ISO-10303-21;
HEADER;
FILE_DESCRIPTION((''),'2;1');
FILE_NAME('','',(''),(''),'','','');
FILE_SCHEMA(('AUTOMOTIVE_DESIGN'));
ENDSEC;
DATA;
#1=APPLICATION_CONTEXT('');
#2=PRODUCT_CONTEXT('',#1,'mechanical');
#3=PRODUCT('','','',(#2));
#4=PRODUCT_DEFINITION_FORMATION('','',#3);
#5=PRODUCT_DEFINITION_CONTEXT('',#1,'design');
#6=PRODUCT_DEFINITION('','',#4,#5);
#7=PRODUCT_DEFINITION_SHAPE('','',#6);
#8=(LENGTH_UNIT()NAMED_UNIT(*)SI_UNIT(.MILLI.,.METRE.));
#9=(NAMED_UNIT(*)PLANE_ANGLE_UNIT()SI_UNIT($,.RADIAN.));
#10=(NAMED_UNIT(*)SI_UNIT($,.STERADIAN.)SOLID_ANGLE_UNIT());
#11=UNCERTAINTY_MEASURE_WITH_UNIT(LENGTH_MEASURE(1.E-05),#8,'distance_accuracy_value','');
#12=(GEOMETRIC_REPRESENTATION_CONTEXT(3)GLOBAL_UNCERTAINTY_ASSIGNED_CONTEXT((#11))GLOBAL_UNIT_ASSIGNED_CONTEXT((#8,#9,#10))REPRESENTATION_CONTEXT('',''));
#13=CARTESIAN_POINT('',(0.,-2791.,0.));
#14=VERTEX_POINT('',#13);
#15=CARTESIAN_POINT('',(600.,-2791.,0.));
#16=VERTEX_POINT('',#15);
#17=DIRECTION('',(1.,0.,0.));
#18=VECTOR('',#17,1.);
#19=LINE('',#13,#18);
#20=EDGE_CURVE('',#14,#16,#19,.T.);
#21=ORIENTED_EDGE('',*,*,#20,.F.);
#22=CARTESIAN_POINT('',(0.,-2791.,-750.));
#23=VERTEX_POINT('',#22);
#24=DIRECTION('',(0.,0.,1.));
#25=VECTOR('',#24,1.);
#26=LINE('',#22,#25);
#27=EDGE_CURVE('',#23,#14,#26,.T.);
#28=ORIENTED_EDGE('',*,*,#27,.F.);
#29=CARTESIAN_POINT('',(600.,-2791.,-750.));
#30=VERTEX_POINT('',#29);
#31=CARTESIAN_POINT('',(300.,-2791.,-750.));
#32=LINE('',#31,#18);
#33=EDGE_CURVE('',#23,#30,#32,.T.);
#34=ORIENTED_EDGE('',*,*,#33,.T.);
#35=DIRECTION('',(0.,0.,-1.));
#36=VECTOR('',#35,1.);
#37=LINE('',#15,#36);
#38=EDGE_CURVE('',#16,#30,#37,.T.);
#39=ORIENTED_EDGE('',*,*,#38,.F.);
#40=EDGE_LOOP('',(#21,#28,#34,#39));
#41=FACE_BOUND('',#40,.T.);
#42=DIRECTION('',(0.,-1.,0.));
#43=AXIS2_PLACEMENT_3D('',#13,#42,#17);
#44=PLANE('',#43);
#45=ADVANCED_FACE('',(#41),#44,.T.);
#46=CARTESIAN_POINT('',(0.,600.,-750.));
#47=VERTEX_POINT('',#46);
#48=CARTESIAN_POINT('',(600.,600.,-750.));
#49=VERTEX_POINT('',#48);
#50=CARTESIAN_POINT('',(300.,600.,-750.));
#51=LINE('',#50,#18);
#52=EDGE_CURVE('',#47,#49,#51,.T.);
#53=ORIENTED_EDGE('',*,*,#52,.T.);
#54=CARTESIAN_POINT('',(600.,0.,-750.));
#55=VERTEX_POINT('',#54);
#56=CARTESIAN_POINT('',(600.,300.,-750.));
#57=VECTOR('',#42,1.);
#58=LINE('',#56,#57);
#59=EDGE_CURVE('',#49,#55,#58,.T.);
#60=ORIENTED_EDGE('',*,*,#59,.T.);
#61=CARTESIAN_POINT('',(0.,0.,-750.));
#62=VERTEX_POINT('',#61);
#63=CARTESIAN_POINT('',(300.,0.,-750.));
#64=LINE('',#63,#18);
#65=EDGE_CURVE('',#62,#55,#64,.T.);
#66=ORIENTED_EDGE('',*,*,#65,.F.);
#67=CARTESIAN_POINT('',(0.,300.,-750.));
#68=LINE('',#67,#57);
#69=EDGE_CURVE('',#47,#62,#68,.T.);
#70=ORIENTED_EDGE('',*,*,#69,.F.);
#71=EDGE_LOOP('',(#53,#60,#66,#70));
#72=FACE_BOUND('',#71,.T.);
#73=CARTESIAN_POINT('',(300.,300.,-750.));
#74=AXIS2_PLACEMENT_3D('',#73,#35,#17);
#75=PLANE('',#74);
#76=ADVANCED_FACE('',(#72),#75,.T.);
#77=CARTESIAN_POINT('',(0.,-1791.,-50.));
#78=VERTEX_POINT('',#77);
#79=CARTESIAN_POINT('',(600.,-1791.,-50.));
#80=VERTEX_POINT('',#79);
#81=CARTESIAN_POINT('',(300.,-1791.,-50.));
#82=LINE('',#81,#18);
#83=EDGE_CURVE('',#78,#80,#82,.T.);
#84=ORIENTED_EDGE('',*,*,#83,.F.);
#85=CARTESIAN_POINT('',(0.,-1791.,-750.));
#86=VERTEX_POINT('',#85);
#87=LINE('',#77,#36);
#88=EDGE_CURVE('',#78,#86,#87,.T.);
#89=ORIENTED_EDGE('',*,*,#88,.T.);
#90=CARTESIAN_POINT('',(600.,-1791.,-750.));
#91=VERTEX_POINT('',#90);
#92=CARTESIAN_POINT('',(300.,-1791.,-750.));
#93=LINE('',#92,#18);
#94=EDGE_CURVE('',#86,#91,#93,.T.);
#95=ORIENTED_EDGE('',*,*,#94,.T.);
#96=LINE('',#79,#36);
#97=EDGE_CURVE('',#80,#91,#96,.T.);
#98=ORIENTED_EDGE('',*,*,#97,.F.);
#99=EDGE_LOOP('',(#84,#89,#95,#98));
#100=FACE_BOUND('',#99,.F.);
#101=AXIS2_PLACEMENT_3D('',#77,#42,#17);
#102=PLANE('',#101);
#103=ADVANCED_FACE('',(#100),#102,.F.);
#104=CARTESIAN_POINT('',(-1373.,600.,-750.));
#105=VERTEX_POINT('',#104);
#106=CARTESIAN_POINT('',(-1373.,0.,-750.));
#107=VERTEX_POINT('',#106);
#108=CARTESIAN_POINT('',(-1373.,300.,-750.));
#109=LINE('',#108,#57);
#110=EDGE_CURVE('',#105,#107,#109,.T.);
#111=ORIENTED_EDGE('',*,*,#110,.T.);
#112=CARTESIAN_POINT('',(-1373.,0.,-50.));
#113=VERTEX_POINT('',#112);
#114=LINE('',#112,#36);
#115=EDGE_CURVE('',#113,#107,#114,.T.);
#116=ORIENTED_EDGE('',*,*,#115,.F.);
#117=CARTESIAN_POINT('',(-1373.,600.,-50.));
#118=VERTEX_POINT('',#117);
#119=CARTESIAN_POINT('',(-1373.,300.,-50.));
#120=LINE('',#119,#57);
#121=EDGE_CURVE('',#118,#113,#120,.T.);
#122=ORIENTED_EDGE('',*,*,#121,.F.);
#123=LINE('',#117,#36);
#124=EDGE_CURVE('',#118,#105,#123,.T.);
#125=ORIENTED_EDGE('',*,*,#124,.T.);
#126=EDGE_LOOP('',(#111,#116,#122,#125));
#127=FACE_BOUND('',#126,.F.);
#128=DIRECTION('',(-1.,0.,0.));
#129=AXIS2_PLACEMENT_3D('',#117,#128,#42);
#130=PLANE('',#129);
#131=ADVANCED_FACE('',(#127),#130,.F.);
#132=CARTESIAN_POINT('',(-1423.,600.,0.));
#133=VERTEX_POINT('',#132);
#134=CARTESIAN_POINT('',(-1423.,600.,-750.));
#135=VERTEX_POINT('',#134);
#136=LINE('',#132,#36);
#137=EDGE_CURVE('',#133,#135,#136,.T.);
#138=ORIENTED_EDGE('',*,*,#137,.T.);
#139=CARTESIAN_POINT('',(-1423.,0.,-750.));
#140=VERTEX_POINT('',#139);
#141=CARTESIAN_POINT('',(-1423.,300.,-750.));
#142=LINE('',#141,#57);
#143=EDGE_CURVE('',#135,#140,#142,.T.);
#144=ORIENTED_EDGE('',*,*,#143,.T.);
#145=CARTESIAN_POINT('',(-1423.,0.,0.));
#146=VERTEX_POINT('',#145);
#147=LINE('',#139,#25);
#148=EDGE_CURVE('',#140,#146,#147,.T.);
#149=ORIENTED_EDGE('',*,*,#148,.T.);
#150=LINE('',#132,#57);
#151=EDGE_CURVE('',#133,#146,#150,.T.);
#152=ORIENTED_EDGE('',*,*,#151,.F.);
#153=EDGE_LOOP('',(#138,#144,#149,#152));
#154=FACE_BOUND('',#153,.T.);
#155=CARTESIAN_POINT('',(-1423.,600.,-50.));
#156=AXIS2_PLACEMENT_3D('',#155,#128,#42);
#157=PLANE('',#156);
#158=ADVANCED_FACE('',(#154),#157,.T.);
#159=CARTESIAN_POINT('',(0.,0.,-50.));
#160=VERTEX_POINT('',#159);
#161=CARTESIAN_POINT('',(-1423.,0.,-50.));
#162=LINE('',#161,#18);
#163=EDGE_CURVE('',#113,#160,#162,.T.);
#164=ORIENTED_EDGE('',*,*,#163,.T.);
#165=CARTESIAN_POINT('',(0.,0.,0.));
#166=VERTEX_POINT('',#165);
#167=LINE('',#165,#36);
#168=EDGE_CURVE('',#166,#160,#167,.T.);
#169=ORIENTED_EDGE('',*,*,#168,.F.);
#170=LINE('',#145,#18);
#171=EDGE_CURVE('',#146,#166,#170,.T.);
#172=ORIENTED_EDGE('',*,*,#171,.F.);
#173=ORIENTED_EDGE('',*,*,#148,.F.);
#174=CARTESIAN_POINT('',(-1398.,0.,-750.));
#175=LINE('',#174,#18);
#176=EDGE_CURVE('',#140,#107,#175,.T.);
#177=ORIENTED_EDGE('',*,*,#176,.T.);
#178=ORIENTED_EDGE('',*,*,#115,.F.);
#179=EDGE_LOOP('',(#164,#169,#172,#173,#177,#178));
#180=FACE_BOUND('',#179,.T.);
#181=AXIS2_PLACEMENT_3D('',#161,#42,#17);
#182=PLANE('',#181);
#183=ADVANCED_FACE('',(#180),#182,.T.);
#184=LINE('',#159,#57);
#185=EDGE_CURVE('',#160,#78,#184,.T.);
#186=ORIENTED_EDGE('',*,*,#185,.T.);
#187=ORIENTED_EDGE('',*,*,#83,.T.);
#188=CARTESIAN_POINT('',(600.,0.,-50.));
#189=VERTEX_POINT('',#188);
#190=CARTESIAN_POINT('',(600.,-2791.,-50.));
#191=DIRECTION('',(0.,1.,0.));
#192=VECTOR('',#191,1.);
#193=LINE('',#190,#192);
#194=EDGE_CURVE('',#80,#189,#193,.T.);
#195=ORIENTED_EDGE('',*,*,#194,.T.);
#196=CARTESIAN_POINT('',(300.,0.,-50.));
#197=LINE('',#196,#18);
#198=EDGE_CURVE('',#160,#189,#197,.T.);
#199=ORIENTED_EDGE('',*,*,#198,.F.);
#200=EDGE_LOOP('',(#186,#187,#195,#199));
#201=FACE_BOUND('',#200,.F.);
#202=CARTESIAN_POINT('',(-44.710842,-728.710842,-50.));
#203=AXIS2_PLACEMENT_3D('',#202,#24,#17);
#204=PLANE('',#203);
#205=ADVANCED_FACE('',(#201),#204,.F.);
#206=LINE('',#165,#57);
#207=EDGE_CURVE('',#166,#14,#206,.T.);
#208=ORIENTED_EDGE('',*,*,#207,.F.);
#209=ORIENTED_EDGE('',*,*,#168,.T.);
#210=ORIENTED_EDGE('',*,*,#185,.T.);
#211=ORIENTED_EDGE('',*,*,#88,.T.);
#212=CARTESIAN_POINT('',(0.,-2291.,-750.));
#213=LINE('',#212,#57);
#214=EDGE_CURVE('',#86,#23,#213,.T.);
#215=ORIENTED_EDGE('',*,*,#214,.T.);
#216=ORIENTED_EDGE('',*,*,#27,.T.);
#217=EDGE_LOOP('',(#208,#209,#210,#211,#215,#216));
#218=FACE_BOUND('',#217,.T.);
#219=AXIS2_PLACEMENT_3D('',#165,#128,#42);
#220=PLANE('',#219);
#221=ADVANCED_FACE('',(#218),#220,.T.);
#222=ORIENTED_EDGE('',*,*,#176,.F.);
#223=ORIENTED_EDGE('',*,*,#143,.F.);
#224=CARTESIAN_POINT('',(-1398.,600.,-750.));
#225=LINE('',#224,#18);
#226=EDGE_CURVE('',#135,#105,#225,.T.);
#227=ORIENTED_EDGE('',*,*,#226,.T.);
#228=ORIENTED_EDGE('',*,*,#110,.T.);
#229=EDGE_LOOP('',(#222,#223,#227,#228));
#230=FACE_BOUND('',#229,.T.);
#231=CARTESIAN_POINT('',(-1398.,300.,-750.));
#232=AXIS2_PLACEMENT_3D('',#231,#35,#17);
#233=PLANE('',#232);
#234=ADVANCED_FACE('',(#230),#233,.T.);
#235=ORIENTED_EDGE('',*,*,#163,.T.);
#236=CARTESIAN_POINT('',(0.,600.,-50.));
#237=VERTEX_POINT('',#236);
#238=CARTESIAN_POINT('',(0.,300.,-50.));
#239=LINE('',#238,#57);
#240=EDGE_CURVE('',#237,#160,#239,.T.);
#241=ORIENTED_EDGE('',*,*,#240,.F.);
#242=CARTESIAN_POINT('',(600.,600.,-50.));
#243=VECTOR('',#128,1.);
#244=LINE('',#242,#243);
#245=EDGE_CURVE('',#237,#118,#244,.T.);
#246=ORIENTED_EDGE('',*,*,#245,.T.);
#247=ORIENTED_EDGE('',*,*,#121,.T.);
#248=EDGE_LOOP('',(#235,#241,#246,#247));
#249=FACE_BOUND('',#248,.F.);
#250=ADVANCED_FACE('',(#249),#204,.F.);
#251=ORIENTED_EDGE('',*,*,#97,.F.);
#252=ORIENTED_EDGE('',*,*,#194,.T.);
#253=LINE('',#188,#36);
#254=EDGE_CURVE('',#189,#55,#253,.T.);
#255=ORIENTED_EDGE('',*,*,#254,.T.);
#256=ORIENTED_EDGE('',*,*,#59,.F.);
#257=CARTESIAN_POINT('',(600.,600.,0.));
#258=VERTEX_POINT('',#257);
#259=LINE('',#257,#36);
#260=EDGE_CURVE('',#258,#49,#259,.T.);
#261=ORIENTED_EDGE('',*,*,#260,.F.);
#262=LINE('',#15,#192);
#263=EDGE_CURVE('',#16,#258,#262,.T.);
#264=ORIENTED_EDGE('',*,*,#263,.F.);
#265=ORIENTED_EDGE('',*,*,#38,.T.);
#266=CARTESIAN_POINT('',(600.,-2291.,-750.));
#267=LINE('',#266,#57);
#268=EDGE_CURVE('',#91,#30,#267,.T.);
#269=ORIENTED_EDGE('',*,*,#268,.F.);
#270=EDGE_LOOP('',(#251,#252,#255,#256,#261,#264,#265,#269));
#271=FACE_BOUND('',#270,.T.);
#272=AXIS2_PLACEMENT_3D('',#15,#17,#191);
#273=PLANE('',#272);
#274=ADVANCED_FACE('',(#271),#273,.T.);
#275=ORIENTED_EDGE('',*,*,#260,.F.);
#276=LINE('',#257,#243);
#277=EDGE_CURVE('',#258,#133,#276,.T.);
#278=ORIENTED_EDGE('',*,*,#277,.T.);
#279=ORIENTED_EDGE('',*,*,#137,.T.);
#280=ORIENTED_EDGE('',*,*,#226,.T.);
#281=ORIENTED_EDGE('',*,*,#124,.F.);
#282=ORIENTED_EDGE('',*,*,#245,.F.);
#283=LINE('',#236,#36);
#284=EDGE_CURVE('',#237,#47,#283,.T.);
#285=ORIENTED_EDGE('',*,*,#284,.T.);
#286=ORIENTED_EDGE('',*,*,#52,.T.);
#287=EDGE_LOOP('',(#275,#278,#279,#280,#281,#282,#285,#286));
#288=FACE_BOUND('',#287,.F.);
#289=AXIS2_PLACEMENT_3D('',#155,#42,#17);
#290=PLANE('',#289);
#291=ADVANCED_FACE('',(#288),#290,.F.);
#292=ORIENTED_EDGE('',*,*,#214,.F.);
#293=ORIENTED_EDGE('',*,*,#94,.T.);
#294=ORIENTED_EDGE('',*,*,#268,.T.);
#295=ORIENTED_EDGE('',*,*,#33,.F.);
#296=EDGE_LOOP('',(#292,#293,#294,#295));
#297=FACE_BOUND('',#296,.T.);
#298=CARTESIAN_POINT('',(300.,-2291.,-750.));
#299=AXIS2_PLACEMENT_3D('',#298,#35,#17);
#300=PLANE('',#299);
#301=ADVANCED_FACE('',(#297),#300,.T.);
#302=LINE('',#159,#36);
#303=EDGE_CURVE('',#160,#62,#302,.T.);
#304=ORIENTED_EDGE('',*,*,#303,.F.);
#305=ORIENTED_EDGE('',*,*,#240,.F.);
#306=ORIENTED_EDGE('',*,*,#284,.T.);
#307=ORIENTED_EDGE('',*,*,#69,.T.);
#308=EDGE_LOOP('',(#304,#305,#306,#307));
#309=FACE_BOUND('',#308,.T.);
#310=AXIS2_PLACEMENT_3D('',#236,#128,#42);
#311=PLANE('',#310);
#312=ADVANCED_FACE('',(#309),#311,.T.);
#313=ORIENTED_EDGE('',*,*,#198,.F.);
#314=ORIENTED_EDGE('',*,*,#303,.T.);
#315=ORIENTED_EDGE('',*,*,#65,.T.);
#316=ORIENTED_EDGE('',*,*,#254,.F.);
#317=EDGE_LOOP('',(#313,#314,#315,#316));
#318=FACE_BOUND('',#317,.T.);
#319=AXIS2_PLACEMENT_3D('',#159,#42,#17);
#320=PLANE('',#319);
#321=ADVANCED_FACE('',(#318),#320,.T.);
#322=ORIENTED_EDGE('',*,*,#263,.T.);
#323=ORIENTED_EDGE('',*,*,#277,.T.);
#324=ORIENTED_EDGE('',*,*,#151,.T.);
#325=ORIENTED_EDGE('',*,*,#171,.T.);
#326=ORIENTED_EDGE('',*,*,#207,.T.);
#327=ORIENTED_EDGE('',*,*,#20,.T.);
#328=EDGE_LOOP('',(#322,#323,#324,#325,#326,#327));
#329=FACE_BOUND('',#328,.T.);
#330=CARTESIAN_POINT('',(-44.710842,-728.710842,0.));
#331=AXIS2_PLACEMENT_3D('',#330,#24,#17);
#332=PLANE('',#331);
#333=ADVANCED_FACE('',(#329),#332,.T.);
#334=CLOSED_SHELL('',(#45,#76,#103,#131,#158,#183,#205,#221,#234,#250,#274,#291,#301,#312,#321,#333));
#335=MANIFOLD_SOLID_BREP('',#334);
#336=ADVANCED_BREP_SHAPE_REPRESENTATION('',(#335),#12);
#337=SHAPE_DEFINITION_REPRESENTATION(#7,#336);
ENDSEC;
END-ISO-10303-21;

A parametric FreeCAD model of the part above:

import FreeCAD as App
import Part
import Sketcher

V = App.Vector

doc = App.newDocument("Part")
body = doc.addObject("PartDesign::Body", "Body")

sketch1 = body.newObject("Sketcher::SketchObject", "Sketch")
sketch1.AttachmentSupport = (doc.getObject("XY_Plane"), [""])
sketch1.MapMode = "FlatFace"
sketch1.addGeometry([
    Part.LineSegment(V(-1423, 600, 0), V(-1423, 0, 0)),
    Part.LineSegment(V(-1423, 0, 0), V(0, 0, 0)),
    Part.LineSegment(V(0, 0, 0), V(0, -2791, 0)),
    Part.LineSegment(V(0, -2791, 0), V(600, -2791, 0)),
    Part.LineSegment(V(600, -2791, 0), V(600, 600, 0)),
    Part.LineSegment(V(600, 600, 0), V(-1423, 600, 0)),
], False)
sketch1.addConstraint([
    Sketcher.Constraint("Coincident", 0, 2, 1, 1),
    Sketcher.Constraint("Coincident", 1, 2, 2, 1),
    Sketcher.Constraint("Coincident", 2, 2, 3, 1),
    Sketcher.Constraint("Coincident", 3, 2, 4, 1),
    Sketcher.Constraint("Coincident", 4, 2, 5, 1),
    Sketcher.Constraint("Coincident", 5, 2, 0, 1),
    Sketcher.Constraint("Vertical", 0),
    Sketcher.Constraint("Horizontal", 1),
    Sketcher.Constraint("Vertical", 2),
    Sketcher.Constraint("Horizontal", 3),
    Sketcher.Constraint("Vertical", 4),
    Sketcher.Constraint("Horizontal", 5),
    Sketcher.Constraint("Coincident", 1, 2, -1, 1),
    Sketcher.Constraint("Equal", 3, 0),
    Sketcher.Constraint("DistanceX", 1, 1, 1, 2, 1423.0),
    Sketcher.Constraint("DistanceX", 3, 1, 3, 2, 600.0),
    Sketcher.Constraint("DistanceY", 2, 2, 2, 1, 2791.0),
])
pad1 = body.newObject("PartDesign::Pad", "Pad")
pad1.Profile = sketch1
pad1.Length = 50
pad1.Reversed = True

sketch2 = body.newObject("Sketcher::SketchObject", "Sketch001")
sketch2.AttachmentSupport = (doc.getObject("XY_Plane"), [""])
sketch2.MapMode = "FlatFace"
sketch2.AttachmentOffset = App.Placement(V(0, 0, -50), App.Rotation())
sketch2.addGeometry([
    Part.LineSegment(V(-1423, 0, 0), V(-1423, 600, 0)),
    Part.LineSegment(V(-1423, 600, 0), V(-1373, 600, 0)),
    Part.LineSegment(V(-1373, 600, 0), V(-1373, 0, 0)),
    Part.LineSegment(V(-1373, 0, 0), V(-1423, 0, 0)),
    Part.LineSegment(V(0, 0, 0), V(0, 600, 0)),
    Part.LineSegment(V(0, 600, 0), V(600, 600, 0)),
    Part.LineSegment(V(600, 600, 0), V(600, 0, 0)),
    Part.LineSegment(V(600, 0, 0), V(0, 0, 0)),
    Part.LineSegment(V(0, -2791, 0), V(0, -1791, 0)),
    Part.LineSegment(V(0, -1791, 0), V(600, -1791, 0)),
    Part.LineSegment(V(600, -1791, 0), V(600, -2791, 0)),
    Part.LineSegment(V(600, -2791, 0), V(0, -2791, 0)),
], False)
sketch2.addConstraint([
    Sketcher.Constraint("Coincident", 0, 2, 1, 1),
    Sketcher.Constraint("Coincident", 1, 2, 2, 1),
    Sketcher.Constraint("Coincident", 2, 2, 3, 1),
    Sketcher.Constraint("Coincident", 3, 2, 0, 1),
    Sketcher.Constraint("Coincident", 4, 2, 5, 1),
    Sketcher.Constraint("Coincident", 5, 2, 6, 1),
    Sketcher.Constraint("Coincident", 6, 2, 7, 1),
    Sketcher.Constraint("Coincident", 7, 2, 4, 1),
    Sketcher.Constraint("Coincident", 8, 2, 9, 1),
    Sketcher.Constraint("Coincident", 9, 2, 10, 1),
    Sketcher.Constraint("Coincident", 10, 2, 11, 1),
    Sketcher.Constraint("Coincident", 11, 2, 8, 1),
    Sketcher.Constraint("Vertical", 0),
    Sketcher.Constraint("Horizontal", 1),
    Sketcher.Constraint("Vertical", 2),
    Sketcher.Constraint("Horizontal", 3),
    Sketcher.Constraint("Vertical", 4),
    Sketcher.Constraint("Horizontal", 5),
    Sketcher.Constraint("Vertical", 6),
    Sketcher.Constraint("Horizontal", 7),
    Sketcher.Constraint("Vertical", 8),
    Sketcher.Constraint("Horizontal", 9),
    Sketcher.Constraint("Vertical", 10),
    Sketcher.Constraint("Horizontal", 11),
    Sketcher.Constraint("Coincident", 7, 2, -1, 1),
    Sketcher.Constraint("PointOnObject", 2, 2, -1),
    Sketcher.Constraint("PointOnObject", 8, 2, -2),
    Sketcher.Constraint("Horizontal", 1, 2, 4, 2),
    Sketcher.Constraint("Vertical", 6, 2, 9, 2),
    Sketcher.Constraint("Equal", 11, 0),
    Sketcher.Constraint("DistanceX", 1, 1, 1, 2, 50.0),
    Sketcher.Constraint("DistanceX", 5, 1, 5, 2, 600.0),
    Sketcher.Constraint("DistanceY", 8, 1, 8, 2, 1000.0),
    Sketcher.Constraint("DistanceX", 0, 2, -1, 1, 1423.0),
    Sketcher.Constraint("DistanceY", 8, 2, -1, 1, 1791.0),
])
pad2 = body.newObject("PartDesign::Pad", "Pad001")
pad2.Profile = sketch2
pad2.Length = 700
pad2.Reversed = True

doc.recompute()
